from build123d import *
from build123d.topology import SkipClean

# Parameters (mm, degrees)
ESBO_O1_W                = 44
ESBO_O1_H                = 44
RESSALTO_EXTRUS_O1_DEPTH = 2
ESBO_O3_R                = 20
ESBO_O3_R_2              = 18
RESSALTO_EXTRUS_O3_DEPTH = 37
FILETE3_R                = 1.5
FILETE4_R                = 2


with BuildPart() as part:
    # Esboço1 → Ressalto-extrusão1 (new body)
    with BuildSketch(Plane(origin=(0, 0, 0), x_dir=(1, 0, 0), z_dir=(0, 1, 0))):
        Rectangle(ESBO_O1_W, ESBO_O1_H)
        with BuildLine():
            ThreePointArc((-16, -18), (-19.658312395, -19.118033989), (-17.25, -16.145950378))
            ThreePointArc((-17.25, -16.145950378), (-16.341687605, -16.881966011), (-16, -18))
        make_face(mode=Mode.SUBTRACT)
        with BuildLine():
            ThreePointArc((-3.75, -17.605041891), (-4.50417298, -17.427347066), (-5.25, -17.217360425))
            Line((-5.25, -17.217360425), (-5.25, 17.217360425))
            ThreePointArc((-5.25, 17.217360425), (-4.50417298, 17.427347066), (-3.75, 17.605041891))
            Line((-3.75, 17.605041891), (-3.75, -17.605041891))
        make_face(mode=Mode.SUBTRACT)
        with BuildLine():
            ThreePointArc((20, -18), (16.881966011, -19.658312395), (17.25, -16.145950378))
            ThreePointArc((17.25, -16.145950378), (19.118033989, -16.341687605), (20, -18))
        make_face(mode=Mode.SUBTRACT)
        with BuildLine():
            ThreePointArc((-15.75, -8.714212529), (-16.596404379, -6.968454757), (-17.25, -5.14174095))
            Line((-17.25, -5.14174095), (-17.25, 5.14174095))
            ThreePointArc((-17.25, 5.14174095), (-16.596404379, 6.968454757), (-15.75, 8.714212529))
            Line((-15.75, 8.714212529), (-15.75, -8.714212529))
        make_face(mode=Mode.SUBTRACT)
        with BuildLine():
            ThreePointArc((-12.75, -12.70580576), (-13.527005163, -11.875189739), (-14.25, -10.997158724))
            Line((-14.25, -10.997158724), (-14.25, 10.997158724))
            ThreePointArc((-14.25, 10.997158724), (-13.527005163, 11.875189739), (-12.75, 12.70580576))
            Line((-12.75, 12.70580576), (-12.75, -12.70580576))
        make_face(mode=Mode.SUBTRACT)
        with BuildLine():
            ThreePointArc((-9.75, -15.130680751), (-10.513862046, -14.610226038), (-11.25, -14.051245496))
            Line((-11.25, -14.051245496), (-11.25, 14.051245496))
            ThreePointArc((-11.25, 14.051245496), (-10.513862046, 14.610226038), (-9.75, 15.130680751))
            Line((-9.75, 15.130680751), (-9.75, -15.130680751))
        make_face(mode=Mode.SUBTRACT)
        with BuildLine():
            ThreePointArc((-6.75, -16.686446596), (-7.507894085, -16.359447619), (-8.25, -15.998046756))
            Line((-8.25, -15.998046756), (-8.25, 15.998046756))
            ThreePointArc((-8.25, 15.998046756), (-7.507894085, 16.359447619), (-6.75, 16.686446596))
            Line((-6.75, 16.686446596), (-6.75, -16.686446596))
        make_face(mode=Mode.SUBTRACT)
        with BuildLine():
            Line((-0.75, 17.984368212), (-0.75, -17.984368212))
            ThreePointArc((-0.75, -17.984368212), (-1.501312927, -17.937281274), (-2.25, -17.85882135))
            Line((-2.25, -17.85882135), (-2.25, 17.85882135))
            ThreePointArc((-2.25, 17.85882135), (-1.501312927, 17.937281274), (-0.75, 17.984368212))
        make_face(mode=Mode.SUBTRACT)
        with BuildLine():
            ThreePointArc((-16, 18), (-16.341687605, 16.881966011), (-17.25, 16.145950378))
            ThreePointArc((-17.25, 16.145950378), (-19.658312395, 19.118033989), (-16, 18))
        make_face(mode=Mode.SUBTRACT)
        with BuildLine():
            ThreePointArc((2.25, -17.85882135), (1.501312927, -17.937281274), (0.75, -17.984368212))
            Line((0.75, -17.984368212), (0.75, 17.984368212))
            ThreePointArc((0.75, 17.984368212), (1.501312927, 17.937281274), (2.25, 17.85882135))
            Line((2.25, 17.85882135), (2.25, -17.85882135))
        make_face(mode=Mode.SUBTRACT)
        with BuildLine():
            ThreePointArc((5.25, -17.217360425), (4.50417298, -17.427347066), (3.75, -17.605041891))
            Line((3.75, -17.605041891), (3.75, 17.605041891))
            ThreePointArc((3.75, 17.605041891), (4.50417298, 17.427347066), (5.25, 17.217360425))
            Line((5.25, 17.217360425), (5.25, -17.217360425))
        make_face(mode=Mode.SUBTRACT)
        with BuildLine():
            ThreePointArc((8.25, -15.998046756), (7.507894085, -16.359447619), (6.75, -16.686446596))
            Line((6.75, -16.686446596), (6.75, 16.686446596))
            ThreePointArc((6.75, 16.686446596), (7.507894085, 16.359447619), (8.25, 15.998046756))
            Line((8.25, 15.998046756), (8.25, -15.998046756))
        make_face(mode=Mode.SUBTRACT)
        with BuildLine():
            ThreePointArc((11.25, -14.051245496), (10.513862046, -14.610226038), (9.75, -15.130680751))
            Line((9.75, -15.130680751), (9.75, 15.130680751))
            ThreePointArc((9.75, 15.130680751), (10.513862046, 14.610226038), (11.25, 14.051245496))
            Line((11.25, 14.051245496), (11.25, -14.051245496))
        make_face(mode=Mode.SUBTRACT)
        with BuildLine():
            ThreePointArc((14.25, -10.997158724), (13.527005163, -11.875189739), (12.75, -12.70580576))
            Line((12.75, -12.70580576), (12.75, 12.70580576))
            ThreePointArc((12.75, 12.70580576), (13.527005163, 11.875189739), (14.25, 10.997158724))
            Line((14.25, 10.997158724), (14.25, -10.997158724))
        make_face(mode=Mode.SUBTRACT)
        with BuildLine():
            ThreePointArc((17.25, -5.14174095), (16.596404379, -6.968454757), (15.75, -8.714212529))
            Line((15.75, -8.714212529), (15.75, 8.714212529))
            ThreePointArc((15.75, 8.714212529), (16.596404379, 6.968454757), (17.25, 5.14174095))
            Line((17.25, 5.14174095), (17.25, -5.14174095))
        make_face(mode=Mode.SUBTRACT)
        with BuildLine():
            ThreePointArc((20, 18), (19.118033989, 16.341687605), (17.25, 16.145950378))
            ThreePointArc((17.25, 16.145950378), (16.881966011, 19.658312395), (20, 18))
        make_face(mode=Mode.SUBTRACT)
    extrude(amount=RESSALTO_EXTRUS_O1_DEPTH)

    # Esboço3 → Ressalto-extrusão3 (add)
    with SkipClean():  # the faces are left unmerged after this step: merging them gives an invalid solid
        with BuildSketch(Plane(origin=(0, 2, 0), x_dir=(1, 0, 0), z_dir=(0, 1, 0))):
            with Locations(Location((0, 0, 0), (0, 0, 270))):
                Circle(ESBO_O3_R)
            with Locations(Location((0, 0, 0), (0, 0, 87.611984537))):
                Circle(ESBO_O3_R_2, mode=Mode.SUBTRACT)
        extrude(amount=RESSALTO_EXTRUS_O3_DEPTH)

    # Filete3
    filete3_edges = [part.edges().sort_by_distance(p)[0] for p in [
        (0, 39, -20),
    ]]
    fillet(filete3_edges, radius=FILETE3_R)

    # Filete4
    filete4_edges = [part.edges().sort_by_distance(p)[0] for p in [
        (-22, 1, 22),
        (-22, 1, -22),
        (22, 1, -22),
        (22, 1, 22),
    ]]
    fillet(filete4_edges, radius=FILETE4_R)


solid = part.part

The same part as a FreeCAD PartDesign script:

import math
import FreeCAD as App
import Part
import Sketcher


def edges_at(feature, points):
    """Names of the edges that pass closest to the given points."""
    edges = feature.Shape.Edges
    near = lambda p: min(range(len(edges)), key=lambda i: edges[i].distToShape(Part.Vertex(*p))[0])
    return sorted({f"Edge{near(p) + 1}" for p in points})


def add_polygon(sketch, points):
    """Adds a closed chain of lines whose ends are joined by coincident constraints."""
    first, n = sketch.GeometryCount, len(points)
    for a, b in zip(points, points[1:] + points[:1]):
        sketch.addGeometry(Part.LineSegment(App.Vector(*a, 0), App.Vector(*b, 0)), False)
    for i in range(n):
        sketch.addConstraint(Sketcher.Constraint("Coincident", first + i, 2, first + (i + 1) % n, 1))

doc = App.newDocument("Part")
body = doc.addObject("PartDesign::Body", "Body")

# Sketch on XZ plane
sketch1 = doc.addObject("Sketcher::SketchObject", "Sketch")
body.addObject(sketch1)
sketch1.AttachmentSupport = (doc.XZ_Plane, [""])
sketch1.MapMode = "FlatFace"
add_polygon(sketch1, [(-22, -22), (-22, 22), (22, 22), (22, -22)])  # lines 0-3
sketch1.addGeometry(Part.ArcOfCircle(Part.Circle(App.Vector(-18, 18, 0), App.Vector(0, 0, 1), 2), math.radians(-68), math.radians(0)), False)  # 4
sketch1.addGeometry(Part.ArcOfCircle(Part.Circle(App.Vector(-18, 18, 0), App.Vector(0, 0, 1), 2), math.radians(0), math.radians(292)), False)  # 5
sketch1.addGeometry(Part.LineSegment(App.Vector(-15.8, -8.7, 0), App.Vector(-15.8, 8.7, 0)), False)  # 6
sketch1.addGeometry(Part.ArcOfCircle(Part.Circle(App.Vector(0, 0, 0), App.Vector(0, 0, 1), 18), math.radians(151.04), math.radians(163.4)), False)  # 7
sketch1.addGeometry(Part.LineSegment(App.Vector(-17.2, 5.1, 0), App.Vector(-17.2, -5.1, 0)), False)  # 8
sketch1.addGeometry(Part.ArcOfCircle(Part.Circle(App.Vector(0, 0, 0), App.Vector(0, 0, 1), 18), math.radians(-163.4), math.radians(-151.04)), False)  # 9
sketch1.addGeometry(Part.LineSegment(App.Vector(-12.8, -12.7, 0), App.Vector(-12.8, 12.7, 0)), False)  # 10
sketch1.addGeometry(Part.ArcOfCircle(Part.Circle(App.Vector(0, 0, 0), App.Vector(0, 0, 1), 18), math.radians(135.1), math.radians(142.34)), False)  # 11
sketch1.addGeometry(Part.LineSegment(App.Vector(-14.2, 11, 0), App.Vector(-14.2, -11, 0)), False)  # 12
sketch1.addGeometry(Part.ArcOfCircle(Part.Circle(App.Vector(0, 0, 0), App.Vector(0, 0, 1), 18), math.radians(-142.34), math.radians(-135.1)), False)  # 13
sketch1.addGeometry(Part.LineSegment(App.Vector(-9.8, -15.1, 0), App.Vector(-9.8, 15.1, 0)), False)  # 14
sketch1.addGeometry(Part.ArcOfCircle(Part.Circle(App.Vector(0, 0, 0), App.Vector(0, 0, 1), 18), math.radians(122.8), math.radians(128.68)), False)  # 15
sketch1.addGeometry(Part.LineSegment(App.Vector(-11.2, 14.1, 0), App.Vector(-11.2, -14.1, 0)), False)  # 16
sketch1.addGeometry(Part.ArcOfCircle(Part.Circle(App.Vector(0, 0, 0), App.Vector(0, 0, 1), 18), math.radians(-128.68), math.radians(-122.8)), False)  # 17
sketch1.addGeometry(Part.LineSegment(App.Vector(-6.8, -16.7, 0), App.Vector(-6.8, 16.7, 0)), False)  # 18
sketch1.addGeometry(Part.ArcOfCircle(Part.Circle(App.Vector(0, 0, 0), App.Vector(0, 0, 1), 18), math.radians(112.02), math.radians(117.28)), False)  # 19
sketch1.addGeometry(Part.LineSegment(App.Vector(-8.2, 16, 0), App.Vector(-8.2, -16, 0)), False)  # 20
sketch1.addGeometry(Part.ArcOfCircle(Part.Circle(App.Vector(0, 0, 0), App.Vector(0, 0, 1), 18), math.radians(-117.28), math.radians(-112.02)), False)  # 21
sketch1.addGeometry(Part.ArcOfCircle(Part.Circle(App.Vector(0, 0, 0), App.Vector(0, 0, 1), 18), math.radians(-97.18), math.radians(-92.39)), False)  # 22
sketch1.addGeometry(Part.LineSegment(App.Vector(-0.8, -18, 0), App.Vector(-0.8, 18, 0)), False)  # 23
sketch1.addGeometry(Part.ArcOfCircle(Part.Circle(App.Vector(0, 0, 0), App.Vector(0, 0, 1), 18), math.radians(92.39), math.radians(97.18)), False)  # 24
sketch1.addGeometry(Part.LineSegment(App.Vector(-2.2, 17.9, 0), App.Vector(-2.2, -17.9, 0)), False)  # 25
sketch1.addGeometry(Part.ArcOfCircle(Part.Circle(App.Vector(18, 18, 0), App.Vector(0, 0, 1), 2), math.radians(-112), math.radians(0)), False)  # 26
sketch1.addGeometry(Part.ArcOfCircle(Part.Circle(App.Vector(18, 18, 0), App.Vector(0, 0, 1), 2), math.radians(0), math.radians(248)), False)  # 27
sketch1.addGeometry(Part.LineSegment(App.Vector(2.2, -17.9, 0), App.Vector(2.2, 17.9, 0)), False)  # 28
sketch1.addGeometry(Part.ArcOfCircle(Part.Circle(App.Vector(0, 0, 0), App.Vector(0, 0, 1), 18), math.radians(82.82), math.radians(87.61)), False)  # 29
sketch1.addGeometry(Part.LineSegment(App.Vector(0.8, 18, 0), App.Vector(0.8, -18, 0)), False)  # 30
sketch1.addGeometry(Part.ArcOfCircle(Part.Circle(App.Vector(0, 0, 0), App.Vector(0, 0, 1), 18), math.radians(-87.61), math.radians(-82.82)), False)  # 31
sketch1.addGeometry(Part.LineSegment(App.Vector(5.2, -17.2, 0), App.Vector(5.2, 17.2, 0)), False)  # 32
sketch1.addGeometry(Part.ArcOfCircle(Part.Circle(App.Vector(0, 0, 0), App.Vector(0, 0, 1), 18), math.radians(73.04), math.radians(77.98)), False)  # 33
sketch1.addGeometry(Part.LineSegment(App.Vector(3.8, 17.6, 0), App.Vector(3.8, -17.6, 0)), False)  # 34
sketch1.addGeometry(Part.ArcOfCircle(Part.Circle(App.Vector(0, 0, 0), App.Vector(0, 0, 1), 18), math.radians(-77.98), math.radians(-73.04)), False)  # 35
sketch1.addGeometry(Part.LineSegment(App.Vector(8.2, -16, 0), App.Vector(8.2, 16, 0)), False)  # 36
sketch1.addGeometry(Part.ArcOfCircle(Part.Circle(App.Vector(0, 0, 0), App.Vector(0, 0, 1), 18), math.radians(62.72), math.radians(67.98)), False)  # 37
sketch1.addGeometry(Part.LineSegment(App.Vector(6.8, 16.7, 0), App.Vector(6.8, -16.7, 0)), False)  # 38
sketch1.addGeometry(Part.ArcOfCircle(Part.Circle(App.Vector(0, 0, 0), App.Vector(0, 0, 1), 18), math.radians(-67.98), math.radians(-62.72)), False)  # 39
sketch1.addGeometry(Part.LineSegment(App.Vector(11.2, -14.1, 0), App.Vector(11.2, 14.1, 0)), False)  # 40
sketch1.addGeometry(Part.ArcOfCircle(Part.Circle(App.Vector(0, 0, 0), App.Vector(0, 0, 1), 18), math.radians(51.32), math.radians(57.2)), False)  # 41
sketch1.addGeometry(Part.LineSegment(App.Vector(9.8, 15.1, 0), App.Vector(9.8, -15.1, 0)), False)  # 42
sketch1.addGeometry(Part.ArcOfCircle(Part.Circle(App.Vector(0, 0, 0), App.Vector(0, 0, 1), 18), math.radians(-57.2), math.radians(-51.32)), False)  # 43
sketch1.addGeometry(Part.LineSegment(App.Vector(14.2, -11, 0), App.Vector(14.2, 11, 0)), False)  # 44
sketch1.addGeometry(Part.ArcOfCircle(Part.Circle(App.Vector(0, 0, 0), App.Vector(0, 0, 1), 18), math.radians(37.66), math.radians(44.9)), False)  # 45
sketch1.addGeometry(Part.LineSegment(App.Vector(12.8, 12.7, 0), App.Vector(12.8, -12.7, 0)), False)  # 46
sketch1.addGeometry(Part.ArcOfCircle(Part.Circle(App.Vector(0, 0, 0), App.Vector(0, 0, 1), 18), math.radians(-44.9), math.radians(-37.66)), False)  # 47
sketch1.addGeometry(Part.LineSegment(App.Vector(17.2, -5.1, 0), App.Vector(17.2, 5.1, 0)), False)  # 48
sketch1.addGeometry(Part.ArcOfCircle(Part.Circle(App.Vector(0, 0, 0), App.Vector(0, 0, 1), 18), math.radians(16.6), math.radians(28.96)), False)  # 49
sketch1.addGeometry(Part.LineSegment(App.Vector(15.8, 8.7, 0), App.Vector(15.8, -8.7, 0)), False)  # 50
sketch1.addGeometry(Part.ArcOfCircle(Part.Circle(App.Vector(0, 0, 0), App.Vector(0, 0, 1), 18), math.radians(-28.96), math.radians(-16.6)), False)  # 51
sketch1.addGeometry(Part.LineSegment(App.Vector(-3.8, -17.6, 0), App.Vector(-3.8, 17.6, 0)), False)  # 52
sketch1.addGeometry(Part.ArcOfCircle(Part.Circle(App.Vector(0, 0, 0), App.Vector(0, 0, 1), 18), math.radians(102.02), math.radians(106.96)), False)  # 53
sketch1.addGeometry(Part.LineSegment(App.Vector(-5.2, 17.2, 0), App.Vector(-5.2, -17.2, 0)), False)  # 54
sketch1.addGeometry(Part.ArcOfCircle(Part.Circle(App.Vector(0, 0, 0), App.Vector(0, 0, 1), 18), math.radians(-106.96), math.radians(-102.02)), False)  # 55
sketch1.addGeometry(Part.ArcOfCircle(Part.Circle(App.Vector(-18, -18, 0), App.Vector(0, 0, 1), 2), math.radians(68), math.radians(360)), False)  # 56
sketch1.addGeometry(Part.ArcOfCircle(Part.Circle(App.Vector(-18, -18, 0), App.Vector(0, 0, 1), 2), math.radians(0), math.radians(68)), False)  # 57
sketch1.addGeometry(Part.ArcOfCircle(Part.Circle(App.Vector(18, -18, 0), App.Vector(0, 0, 1), 2), math.radians(112), math.radians(360)), False)  # 58
sketch1.addGeometry(Part.ArcOfCircle(Part.Circle(App.Vector(18, -18, 0), App.Vector(0, 0, 1), 2), math.radians(0), math.radians(112)), False)  # 59
sketch1.addConstraint([
    Sketcher.Constraint("Tangent", 4, 1, 5, 2),
    Sketcher.Constraint("Coincident", 5, 1, 4, 2),
    Sketcher.Constraint("Coincident", 6, 2, 7, 1),
    Sketcher.Constraint("Coincident", 7, 2, 8, 1),
    Sketcher.Constraint("Coincident", 8, 2, 9, 1),
    Sketcher.Constraint("Coincident", 9, 2, 6, 1),
    Sketcher.Constraint("Coincident", 10, 2, 11, 1),
    Sketcher.Constraint("Coincident", 11, 2, 12, 1),
    Sketcher.Constraint("Coincident", 12, 2, 13, 1),
    Sketcher.Constraint("Coincident", 13, 2, 10, 1),
    Sketcher.Constraint("Coincident", 14, 2, 15, 1),
    Sketcher.Constraint("Coincident", 15, 2, 16, 1),
    Sketcher.Constraint("Coincident", 16, 2, 17, 1),
    Sketcher.Constraint("Coincident", 17, 2, 14, 1),
    Sketcher.Constraint("Coincident", 18, 2, 19, 1),
    Sketcher.Constraint("Coincident", 19, 2, 20, 1),
    Sketcher.Constraint("Coincident", 20, 2, 21, 1),
    Sketcher.Constraint("Coincident", 21, 2, 18, 1),
    Sketcher.Constraint("Coincident", 22, 2, 23, 1),
    Sketcher.Constraint("Coincident", 23, 2, 24, 1),
    Sketcher.Constraint("Coincident", 24, 2, 25, 1),
    Sketcher.Constraint("Coincident", 25, 2, 22, 1),
    Sketcher.Constraint("Tangent", 26, 1, 27, 2),
    Sketcher.Constraint("Coincident", 27, 1, 26, 2),
    Sketcher.Constraint("Coincident", 28, 2, 29, 1),
    Sketcher.Constraint("Coincident", 29, 2, 30, 1),
    Sketcher.Constraint("Coincident", 30, 2, 31, 1),
    Sketcher.Constraint("Coincident", 31, 2, 28, 1),
    Sketcher.Constraint("Coincident", 32, 2, 33, 1),
    Sketcher.Constraint("Coincident", 33, 2, 34, 1),
    Sketcher.Constraint("Coincident", 34, 2, 35, 1),
    Sketcher.Constraint("Coincident", 35, 2, 32, 1),
    Sketcher.Constraint("Coincident", 36, 2, 37, 1),
    Sketcher.Constraint("Coincident", 37, 2, 38, 1),
    Sketcher.Constraint("Coincident", 38, 2, 39, 1),
    Sketcher.Constraint("Coincident", 39, 2, 36, 1),
    Sketcher.Constraint("Coincident", 40, 2, 41, 1),
    Sketcher.Constraint("Coincident", 41, 2, 42, 1),
    Sketcher.Constraint("Coincident", 42, 2, 43, 1),
    Sketcher.Constraint("Coincident", 43, 2, 40, 1),
    Sketcher.Constraint("Coincident", 44, 2, 45, 1),
    Sketcher.Constraint("Coincident", 45, 2, 46, 1),
    Sketcher.Constraint("Coincident", 46, 2, 47, 1),
    Sketcher.Constraint("Coincident", 47, 2, 44, 1),
    Sketcher.Constraint("Coincident", 48, 2, 49, 1),
    Sketcher.Constraint("Coincident", 49, 2, 50, 1),
    Sketcher.Constraint("Coincident", 50, 2, 51, 1),
    Sketcher.Constraint("Coincident", 51, 2, 48, 1),
    Sketcher.Constraint("Coincident", 52, 2, 53, 1),
    Sketcher.Constraint("Coincident", 53, 2, 54, 1),
    Sketcher.Constraint("Coincident", 54, 2, 55, 1),
    Sketcher.Constraint("Coincident", 55, 2, 52, 1),
    Sketcher.Constraint("Tangent", 56, 1, 57, 2),
    Sketcher.Constraint("Coincident", 57, 1, 56, 2),
    Sketcher.Constraint("Tangent", 58, 1, 59, 2),
    Sketcher.Constraint("Coincident", 59, 1, 58, 2),
    Sketcher.Constraint("Vertical", 0),
    Sketcher.Constraint("Horizontal", 1),
    Sketcher.Constraint("Vertical", 2),
    Sketcher.Constraint("Horizontal", 3),
    Sketcher.Constraint("Vertical", 6),
    Sketcher.Constraint("Vertical", 8),
    Sketcher.Constraint("Vertical", 10),
    Sketcher.Constraint("Vertical", 12),
    Sketcher.Constraint("Vertical", 14),
    Sketcher.Constraint("Vertical", 16),
    Sketcher.Constraint("Vertical", 18),
    Sketcher.Constraint("Vertical", 20),
    Sketcher.Constraint("Vertical", 23),
    Sketcher.Constraint("Vertical", 25),
    Sketcher.Constraint("Vertical", 28),
    Sketcher.Constraint("Vertical", 30),
    Sketcher.Constraint("Vertical", 32),
    Sketcher.Constraint("Vertical", 34),
    Sketcher.Constraint("Vertical", 36),
    Sketcher.Constraint("Vertical", 38),
    Sketcher.Constraint("Vertical", 40),
    Sketcher.Constraint("Vertical", 42),
    Sketcher.Constraint("Vertical", 44),
    Sketcher.Constraint("Vertical", 46),
    Sketcher.Constraint("Vertical", 48),
    Sketcher.Constraint("Vertical", 50),
    Sketcher.Constraint("Vertical", 52),
    Sketcher.Constraint("Vertical", 54),
    Sketcher.Constraint("Coincident", 7, 3, -1, 1),
    Sketcher.Constraint("Coincident", 9, 3, -1, 1),
    Sketcher.Constraint("Coincident", 11, 3, -1, 1),
    Sketcher.Constraint("Coincident", 13, 3, -1, 1),
    Sketcher.Constraint("Coincident", 15, 3, -1, 1),
    Sketcher.Constraint("Coincident", 17, 3, -1, 1),
    Sketcher.Constraint("Coincident", 19, 3, -1, 1),
    Sketcher.Constraint("Coincident", 21, 3, -1, 1),
    Sketcher.Constraint("Coincident", 22, 3, -1, 1),
    Sketcher.Constraint("Coincident", 24, 3, -1, 1),
    Sketcher.Constraint("Coincident", 29, 3, -1, 1),
    Sketcher.Constraint("Coincident", 31, 3, -1, 1),
    Sketcher.Constraint("Coincident", 33, 3, -1, 1),
    Sketcher.Constraint("Coincident", 35, 3, -1, 1),
    Sketcher.Constraint("Coincident", 37, 3, -1, 1),
    Sketcher.Constraint("Coincident", 39, 3, -1, 1),
    Sketcher.Constraint("Coincident", 41, 3, -1, 1),
    Sketcher.Constraint("Coincident", 43, 3, -1, 1),
    Sketcher.Constraint("Coincident", 45, 3, -1, 1),
    Sketcher.Constraint("Coincident", 47, 3, -1, 1),
    Sketcher.Constraint("Coincident", 49, 3, -1, 1),
    Sketcher.Constraint("Coincident", 51, 3, -1, 1),
    Sketcher.Constraint("Coincident", 53, 3, -1, 1),
    Sketcher.Constraint("Coincident", 55, 3, -1, 1),
    Sketcher.Constraint("Equal", 7, 9),
    Sketcher.Constraint("Equal", 9, 11),
    Sketcher.Constraint("Equal", 11, 13),
    Sketcher.Constraint("Equal", 13, 15),
    Sketcher.Constraint("Equal", 15, 17),
    Sketcher.Constraint("Equal", 17, 19),
    Sketcher.Constraint("Equal", 19, 21),
    Sketcher.Constraint("Equal", 21, 22),
    Sketcher.Constraint("Equal", 22, 24),
    Sketcher.Constraint("Equal", 5, 26),
    Sketcher.Constraint("Equal", 24, 29),
    Sketcher.Constraint("Equal", 29, 31),
    Sketcher.Constraint("Equal", 31, 33),
    Sketcher.Constraint("Equal", 33, 35),
    Sketcher.Constraint("Equal", 35, 37),
    Sketcher.Constraint("Equal", 37, 39),
    Sketcher.Constraint("Equal", 39, 41),
    Sketcher.Constraint("Equal", 41, 43),
    Sketcher.Constraint("Equal", 43, 45),
    Sketcher.Constraint("Equal", 45, 47),
    Sketcher.Constraint("Equal", 47, 49),
    Sketcher.Constraint("Equal", 49, 51),
    Sketcher.Constraint("Equal", 51, 53),
    Sketcher.Constraint("Equal", 53, 55),
    Sketcher.Constraint("Equal", 27, 56),
    Sketcher.Constraint("Equal", 57, 58),
    Sketcher.Constraint("Symmetric", 26, 3, 56, 3, -1, 1),
    Sketcher.Constraint("Symmetric", 4, 3, 58, 3, -1, 1),
    Sketcher.Constraint("Symmetric", 0, 2, 2, 2, -1, 1),
    Sketcher.Constraint("Symmetric", 4, 3, 26, 3, -2),
    Sketcher.Constraint("Horizontal", 27, 3, 5, 1),
    Sketcher.Constraint("Horizontal", 4, 1, 26, 1),
    Sketcher.Constraint("Horizontal", 5, 1, 27, 1),
    Sketcher.Constraint("Horizontal", 24, 2, 28, 2),
    Sketcher.Constraint("Horizontal", 23, 2, 29, 2),
    Sketcher.Constraint("Horizontal", 19, 2, 36, 2),
    Sketcher.Constraint("Horizontal", 18, 2, 37, 2),
    Sketcher.Constraint("Horizontal", 15, 2, 40, 2),
    Sketcher.Constraint("Horizontal", 14, 2, 41, 2),
    Sketcher.Constraint("Horizontal", 11, 2, 44, 2),
    Sketcher.Constraint("Horizontal", 10, 2, 45, 2),
    Sketcher.Constraint("Horizontal", 7, 2, 48, 2),
    Sketcher.Constraint("Horizontal", 6, 2, 49, 2),
    Sketcher.Constraint("Horizontal", 33, 2, 52, 2),
    Sketcher.Constraint("Horizontal", 32, 2, 53, 2),
    Sketcher.Constraint("Horizontal", 59, 3, 57, 1),
    Sketcher.Constraint("Horizontal", 56, 1, 58, 1),
    Sketcher.Constraint("Horizontal", 57, 1, 59, 1),
    Sketcher.Constraint("Vertical", 4, 1, 7, 2),
    Sketcher.Constraint("Vertical", 8, 2, 56, 1),
    Sketcher.Constraint("Equal", 3, 0),
    Sketcher.Constraint("Radius", 4, 2.0),
    Sketcher.Constraint("Radius", 7, 18.0),
    Sketcher.Constraint("DistanceX", 1, 1, 1, 2, 44.0),
    Sketcher.Constraint("DistanceX", 4, 3, -1, 1, 18.0),
    Sketcher.Constraint("DistanceY", -1, 1, 4, 3, 18.0),
    Sketcher.Constraint("DistanceX", 4, 1, -1, 1, 17.25),
    Sketcher.Constraint("DistanceX", 6, 2, -1, 1, 15.75),
    Sketcher.Constraint("DistanceX", 10, 2, -1, 1, 12.75),
    Sketcher.Constraint("DistanceX", 11, 2, -1, 1, 14.25),
    Sketcher.Constraint("DistanceX", 14, 2, -1, 1, 9.75),
    Sketcher.Constraint("DistanceX", 15, 2, -1, 1, 11.25),
    Sketcher.Constraint("DistanceX", 18, 2, -1, 1, 6.75),
    Sketcher.Constraint("DistanceX", 19, 2, -1, 1, 8.25),
    Sketcher.Constraint("DistanceX", 22, 2, -1, 1, 0.75),
    Sketcher.Constraint("DistanceX", 24, 2, -1, 1, 2.25),
    Sketcher.Constraint("DistanceX", -1, 1, 32, 2, 5.25),
    Sketcher.Constraint("DistanceX", -1, 1, 33, 2, 3.75),
])
pad1 = doc.addObject("PartDesign::Pad", "Pad")
body.addObject(pad1)
pad1.Profile = sketch1
pad1.Length = 2
pad1.Reversed = True

# Sketch on XZ plane
sketch2 = doc.addObject("Sketcher::SketchObject", "Sketch001")
body.addObject(sketch2)
sketch2.AttachmentSupport = (doc.XZ_Plane, [""])
sketch2.MapMode = "FlatFace"
sketch2.AttachmentOffset = App.Placement(App.Vector(0, 0, -2), App.Rotation())
sketch2.addGeometry([
    Part.Circle(App.Vector(0, 0, 0), App.Vector(0, 0, 1), 20),
    Part.Circle(App.Vector(0, 0, 0), App.Vector(0, 0, 1), 18),
], False)
sketch2.addConstraint([
    Sketcher.Constraint("Coincident", 0, 3, -1, 1),
    Sketcher.Constraint("Coincident", 1, 3, -1, 1),
    Sketcher.Constraint("Diameter", 0, 40.0),
    Sketcher.Constraint("Diameter", 1, 36.0),
])
pad2 = doc.addObject("PartDesign::Pad", "Pad001")
body.addObject(pad2)
pad2.Profile = sketch2
pad2.Length = 37
pad2.Reversed = True
doc.recompute()

fillet = doc.addObject("PartDesign::Fillet", "Fillet")
body.addObject(fillet)
fillet.Base = (pad2, edges_at(pad2, [(0, 39, -20)]))
fillet.Radius = 1.5
doc.recompute()

fillet2 = doc.addObject("PartDesign::Fillet", "Fillet001")
body.addObject(fillet2)
fillet2.Base = (fillet, edges_at(fillet, [
    (-22, 1, 22),
    (-22, 1, -22),
    (22, 1, -22),
    (22, 1, 22),
]))
fillet2.Radius = 2

doc.recompute()
